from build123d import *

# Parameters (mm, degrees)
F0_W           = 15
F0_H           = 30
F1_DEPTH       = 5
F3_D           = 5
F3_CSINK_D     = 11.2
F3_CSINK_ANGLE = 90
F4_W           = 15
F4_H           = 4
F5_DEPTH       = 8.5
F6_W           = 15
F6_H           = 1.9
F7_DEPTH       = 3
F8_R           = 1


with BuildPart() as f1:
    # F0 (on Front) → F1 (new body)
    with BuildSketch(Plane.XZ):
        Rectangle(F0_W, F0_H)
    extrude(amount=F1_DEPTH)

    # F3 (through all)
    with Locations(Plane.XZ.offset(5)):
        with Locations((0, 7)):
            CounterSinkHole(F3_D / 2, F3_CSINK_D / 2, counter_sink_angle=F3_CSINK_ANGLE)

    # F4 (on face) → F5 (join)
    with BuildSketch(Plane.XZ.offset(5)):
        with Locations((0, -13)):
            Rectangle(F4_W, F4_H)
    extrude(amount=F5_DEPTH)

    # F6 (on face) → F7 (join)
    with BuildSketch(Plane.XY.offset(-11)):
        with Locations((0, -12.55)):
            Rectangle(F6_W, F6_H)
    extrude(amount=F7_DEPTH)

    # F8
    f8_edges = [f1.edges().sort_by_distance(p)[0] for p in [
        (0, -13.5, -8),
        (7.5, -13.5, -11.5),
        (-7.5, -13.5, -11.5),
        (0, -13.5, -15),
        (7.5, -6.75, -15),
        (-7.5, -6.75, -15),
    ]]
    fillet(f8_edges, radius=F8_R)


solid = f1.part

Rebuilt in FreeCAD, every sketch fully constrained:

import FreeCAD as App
import Part
import Sketcher


def edges_at(feature, points):
    """Names of the edges that pass closest to the given points."""
    edges = feature.Shape.Edges
    near = lambda p: min(range(len(edges)), key=lambda i: edges[i].distToShape(Part.Vertex(*p))[0])
    return sorted({f"Edge{near(p) + 1}" for p in points})

doc = App.newDocument("Part")
body = doc.addObject("PartDesign::Body", "Body")

# Sketch on XZ plane
sketch1 = body.newObject("Sketcher::SketchObject", "Sketch")
sketch1.AttachmentSupport = (doc.getObject("XZ_Plane"), [""])
sketch1.MapMode = "FlatFace"
sketch1.addGeometry([
    Part.LineSegment(App.Vector(-7.5, 15, 0), App.Vector(-7.5, -15, 0)),
    Part.LineSegment(App.Vector(-7.5, -15, 0), App.Vector(7.5, -15, 0)),
    Part.LineSegment(App.Vector(7.5, -15, 0), App.Vector(7.5, 15, 0)),
    Part.LineSegment(App.Vector(7.5, 15, 0), App.Vector(-7.5, 15, 0)),
], False)
sketch1.addConstraint([
    Sketcher.Constraint("Coincident", 0, 2, 1, 1),
    Sketcher.Constraint("Coincident", 1, 2, 2, 1),
    Sketcher.Constraint("Coincident", 2, 2, 3, 1),
    Sketcher.Constraint("Coincident", 3, 2, 0, 1),
    Sketcher.Constraint("Vertical", 0),
    Sketcher.Constraint("Horizontal", 1),
    Sketcher.Constraint("Vertical", 2),
    Sketcher.Constraint("Horizontal", 3),
    Sketcher.Constraint("Symmetric", 0, 2, 2, 2, -1, 1),
    Sketcher.Constraint("DistanceX", 1, 1, 1, 2, 15.0),
    Sketcher.Constraint("DistanceY", 0, 2, 0, 1, 30.0),
])
pad1 = body.newObject("PartDesign::Pad", "Pad")
pad1.Profile = sketch1
pad1.Length = 5

# Sketch on XZ plane
sketch2 = body.newObject("Sketcher::SketchObject", "Sketch001")
sketch2.AttachmentSupport = (doc.getObject("XZ_Plane"), [""])
sketch2.MapMode = "FlatFace"
sketch2.AttachmentOffset = App.Placement(App.Vector(0, 0, 5), App.Rotation())
sketch2.addGeometry(Part.Circle(App.Vector(0, 7, 0), App.Vector(0, 0, 1), 2.5), False)
sketch2.addConstraint([
    Sketcher.Constraint("PointOnObject", 0, 3, -2),
    Sketcher.Constraint("Diameter", 0, 5.0),
    Sketcher.Constraint("DistanceY", -1, 1, 0, 3, 7.0),
])
doc.recompute()
hole = body.newObject("PartDesign::Hole", "Hole")
hole.Profile = sketch2
hole.ThreadType = "None"
hole.Diameter = 5
hole.DepthType = "ThroughAll"
hole.HoleCutType = "Countersink"
hole.HoleCutDiameter = 11.2
hole.HoleCutCountersinkAngle = 90

# Sketch on XZ plane
sketch3 = body.newObject("Sketcher::SketchObject", "Sketch002")
sketch3.AttachmentSupport = (doc.getObject("XZ_Plane"), [""])
sketch3.MapMode = "FlatFace"
sketch3.AttachmentOffset = App.Placement(App.Vector(0, 0, 5), App.Rotation())
sketch3.addGeometry([
    Part.LineSegment(App.Vector(-7.5, -11, 0), App.Vector(-7.5, -15, 0)),
    Part.LineSegment(App.Vector(-7.5, -15, 0), App.Vector(7.5, -15, 0)),
    Part.LineSegment(App.Vector(7.5, -15, 0), App.Vector(7.5, -11, 0)),
    Part.LineSegment(App.Vector(7.5, -11, 0), App.Vector(-7.5, -11, 0)),
], False)
sketch3.addConstraint([
    Sketcher.Constraint("Coincident", 0, 2, 1, 1),
    Sketcher.Constraint("Coincident", 1, 2, 2, 1),
    Sketcher.Constraint("Coincident", 2, 2, 3, 1),
    Sketcher.Constraint("Coincident", 3, 2, 0, 1),
    Sketcher.Constraint("Vertical", 0),
    Sketcher.Constraint("Horizontal", 1),
    Sketcher.Constraint("Vertical", 2),
    Sketcher.Constraint("Horizontal", 3),
    Sketcher.Constraint("DistanceX", 1, 1, 1, 2, 15.0),
    Sketcher.Constraint("DistanceY", 0, 2, 0, 1, 4.0),
    Sketcher.Constraint("DistanceY", 0, 2, -1, 1, 15.0),
    Sketcher.Constraint("DistanceX", 0, 2, -1, 1, 7.5),
])
pad2 = body.newObject("PartDesign::Pad", "Pad001")
pad2.Profile = sketch3
pad2.Length = 8.5

# Sketch on XY plane
sketch4 = body.newObject("Sketcher::SketchObject", "Sketch003")
sketch4.AttachmentSupport = (doc.getObject("XY_Plane"), [""])
sketch4.MapMode = "FlatFace"
sketch4.AttachmentOffset = App.Placement(App.Vector(0, 0, -11), App.Rotation())
sketch4.addGeometry([
    Part.LineSegment(App.Vector(-7.5, -11.6, 0), App.Vector(-7.5, -13.5, 0)),
    Part.LineSegment(App.Vector(-7.5, -13.5, 0), App.Vector(7.5, -13.5, 0)),
    Part.LineSegment(App.Vector(7.5, -13.5, 0), App.Vector(7.5, -11.6, 0)),
    Part.LineSegment(App.Vector(7.5, -11.6, 0), App.Vector(-7.5, -11.6, 0)),
], False)
sketch4.addConstraint([
    Sketcher.Constraint("Coincident", 0, 2, 1, 1),
    Sketcher.Constraint("Coincident", 1, 2, 2, 1),
    Sketcher.Constraint("Coincident", 2, 2, 3, 1),
    Sketcher.Constraint("Coincident", 3, 2, 0, 1),
    Sketcher.Constraint("Vertical", 0),
    Sketcher.Constraint("Horizontal", 1),
    Sketcher.Constraint("Vertical", 2),
    Sketcher.Constraint("Horizontal", 3),
    Sketcher.Constraint("DistanceX", 1, 1, 1, 2, 15.0),
    Sketcher.Constraint("DistanceY", 0, 2, 0, 1, 1.9),
    Sketcher.Constraint("DistanceX", 0, 2, -1, 1, 7.5),
    Sketcher.Constraint("DistanceY", 0, 2, -1, 1, 13.5),
])
pad3 = body.newObject("PartDesign::Pad", "Pad002")
pad3.Profile = sketch4
pad3.Length = 3
doc.recompute()

fillet = body.newObject("PartDesign::Fillet", "Fillet")
fillet.Base = (pad3, edges_at(pad3, [
    (0, -13.5, -8),
    (7.5, -13.5, -11.5),
    (-7.5, -13.5, -11.5),
    (0, -13.5, -15),
    (7.5, -6.75, -15),
    (-7.5, -6.75, -15),
]))
fillet.Radius = 1

doc.recompute()
